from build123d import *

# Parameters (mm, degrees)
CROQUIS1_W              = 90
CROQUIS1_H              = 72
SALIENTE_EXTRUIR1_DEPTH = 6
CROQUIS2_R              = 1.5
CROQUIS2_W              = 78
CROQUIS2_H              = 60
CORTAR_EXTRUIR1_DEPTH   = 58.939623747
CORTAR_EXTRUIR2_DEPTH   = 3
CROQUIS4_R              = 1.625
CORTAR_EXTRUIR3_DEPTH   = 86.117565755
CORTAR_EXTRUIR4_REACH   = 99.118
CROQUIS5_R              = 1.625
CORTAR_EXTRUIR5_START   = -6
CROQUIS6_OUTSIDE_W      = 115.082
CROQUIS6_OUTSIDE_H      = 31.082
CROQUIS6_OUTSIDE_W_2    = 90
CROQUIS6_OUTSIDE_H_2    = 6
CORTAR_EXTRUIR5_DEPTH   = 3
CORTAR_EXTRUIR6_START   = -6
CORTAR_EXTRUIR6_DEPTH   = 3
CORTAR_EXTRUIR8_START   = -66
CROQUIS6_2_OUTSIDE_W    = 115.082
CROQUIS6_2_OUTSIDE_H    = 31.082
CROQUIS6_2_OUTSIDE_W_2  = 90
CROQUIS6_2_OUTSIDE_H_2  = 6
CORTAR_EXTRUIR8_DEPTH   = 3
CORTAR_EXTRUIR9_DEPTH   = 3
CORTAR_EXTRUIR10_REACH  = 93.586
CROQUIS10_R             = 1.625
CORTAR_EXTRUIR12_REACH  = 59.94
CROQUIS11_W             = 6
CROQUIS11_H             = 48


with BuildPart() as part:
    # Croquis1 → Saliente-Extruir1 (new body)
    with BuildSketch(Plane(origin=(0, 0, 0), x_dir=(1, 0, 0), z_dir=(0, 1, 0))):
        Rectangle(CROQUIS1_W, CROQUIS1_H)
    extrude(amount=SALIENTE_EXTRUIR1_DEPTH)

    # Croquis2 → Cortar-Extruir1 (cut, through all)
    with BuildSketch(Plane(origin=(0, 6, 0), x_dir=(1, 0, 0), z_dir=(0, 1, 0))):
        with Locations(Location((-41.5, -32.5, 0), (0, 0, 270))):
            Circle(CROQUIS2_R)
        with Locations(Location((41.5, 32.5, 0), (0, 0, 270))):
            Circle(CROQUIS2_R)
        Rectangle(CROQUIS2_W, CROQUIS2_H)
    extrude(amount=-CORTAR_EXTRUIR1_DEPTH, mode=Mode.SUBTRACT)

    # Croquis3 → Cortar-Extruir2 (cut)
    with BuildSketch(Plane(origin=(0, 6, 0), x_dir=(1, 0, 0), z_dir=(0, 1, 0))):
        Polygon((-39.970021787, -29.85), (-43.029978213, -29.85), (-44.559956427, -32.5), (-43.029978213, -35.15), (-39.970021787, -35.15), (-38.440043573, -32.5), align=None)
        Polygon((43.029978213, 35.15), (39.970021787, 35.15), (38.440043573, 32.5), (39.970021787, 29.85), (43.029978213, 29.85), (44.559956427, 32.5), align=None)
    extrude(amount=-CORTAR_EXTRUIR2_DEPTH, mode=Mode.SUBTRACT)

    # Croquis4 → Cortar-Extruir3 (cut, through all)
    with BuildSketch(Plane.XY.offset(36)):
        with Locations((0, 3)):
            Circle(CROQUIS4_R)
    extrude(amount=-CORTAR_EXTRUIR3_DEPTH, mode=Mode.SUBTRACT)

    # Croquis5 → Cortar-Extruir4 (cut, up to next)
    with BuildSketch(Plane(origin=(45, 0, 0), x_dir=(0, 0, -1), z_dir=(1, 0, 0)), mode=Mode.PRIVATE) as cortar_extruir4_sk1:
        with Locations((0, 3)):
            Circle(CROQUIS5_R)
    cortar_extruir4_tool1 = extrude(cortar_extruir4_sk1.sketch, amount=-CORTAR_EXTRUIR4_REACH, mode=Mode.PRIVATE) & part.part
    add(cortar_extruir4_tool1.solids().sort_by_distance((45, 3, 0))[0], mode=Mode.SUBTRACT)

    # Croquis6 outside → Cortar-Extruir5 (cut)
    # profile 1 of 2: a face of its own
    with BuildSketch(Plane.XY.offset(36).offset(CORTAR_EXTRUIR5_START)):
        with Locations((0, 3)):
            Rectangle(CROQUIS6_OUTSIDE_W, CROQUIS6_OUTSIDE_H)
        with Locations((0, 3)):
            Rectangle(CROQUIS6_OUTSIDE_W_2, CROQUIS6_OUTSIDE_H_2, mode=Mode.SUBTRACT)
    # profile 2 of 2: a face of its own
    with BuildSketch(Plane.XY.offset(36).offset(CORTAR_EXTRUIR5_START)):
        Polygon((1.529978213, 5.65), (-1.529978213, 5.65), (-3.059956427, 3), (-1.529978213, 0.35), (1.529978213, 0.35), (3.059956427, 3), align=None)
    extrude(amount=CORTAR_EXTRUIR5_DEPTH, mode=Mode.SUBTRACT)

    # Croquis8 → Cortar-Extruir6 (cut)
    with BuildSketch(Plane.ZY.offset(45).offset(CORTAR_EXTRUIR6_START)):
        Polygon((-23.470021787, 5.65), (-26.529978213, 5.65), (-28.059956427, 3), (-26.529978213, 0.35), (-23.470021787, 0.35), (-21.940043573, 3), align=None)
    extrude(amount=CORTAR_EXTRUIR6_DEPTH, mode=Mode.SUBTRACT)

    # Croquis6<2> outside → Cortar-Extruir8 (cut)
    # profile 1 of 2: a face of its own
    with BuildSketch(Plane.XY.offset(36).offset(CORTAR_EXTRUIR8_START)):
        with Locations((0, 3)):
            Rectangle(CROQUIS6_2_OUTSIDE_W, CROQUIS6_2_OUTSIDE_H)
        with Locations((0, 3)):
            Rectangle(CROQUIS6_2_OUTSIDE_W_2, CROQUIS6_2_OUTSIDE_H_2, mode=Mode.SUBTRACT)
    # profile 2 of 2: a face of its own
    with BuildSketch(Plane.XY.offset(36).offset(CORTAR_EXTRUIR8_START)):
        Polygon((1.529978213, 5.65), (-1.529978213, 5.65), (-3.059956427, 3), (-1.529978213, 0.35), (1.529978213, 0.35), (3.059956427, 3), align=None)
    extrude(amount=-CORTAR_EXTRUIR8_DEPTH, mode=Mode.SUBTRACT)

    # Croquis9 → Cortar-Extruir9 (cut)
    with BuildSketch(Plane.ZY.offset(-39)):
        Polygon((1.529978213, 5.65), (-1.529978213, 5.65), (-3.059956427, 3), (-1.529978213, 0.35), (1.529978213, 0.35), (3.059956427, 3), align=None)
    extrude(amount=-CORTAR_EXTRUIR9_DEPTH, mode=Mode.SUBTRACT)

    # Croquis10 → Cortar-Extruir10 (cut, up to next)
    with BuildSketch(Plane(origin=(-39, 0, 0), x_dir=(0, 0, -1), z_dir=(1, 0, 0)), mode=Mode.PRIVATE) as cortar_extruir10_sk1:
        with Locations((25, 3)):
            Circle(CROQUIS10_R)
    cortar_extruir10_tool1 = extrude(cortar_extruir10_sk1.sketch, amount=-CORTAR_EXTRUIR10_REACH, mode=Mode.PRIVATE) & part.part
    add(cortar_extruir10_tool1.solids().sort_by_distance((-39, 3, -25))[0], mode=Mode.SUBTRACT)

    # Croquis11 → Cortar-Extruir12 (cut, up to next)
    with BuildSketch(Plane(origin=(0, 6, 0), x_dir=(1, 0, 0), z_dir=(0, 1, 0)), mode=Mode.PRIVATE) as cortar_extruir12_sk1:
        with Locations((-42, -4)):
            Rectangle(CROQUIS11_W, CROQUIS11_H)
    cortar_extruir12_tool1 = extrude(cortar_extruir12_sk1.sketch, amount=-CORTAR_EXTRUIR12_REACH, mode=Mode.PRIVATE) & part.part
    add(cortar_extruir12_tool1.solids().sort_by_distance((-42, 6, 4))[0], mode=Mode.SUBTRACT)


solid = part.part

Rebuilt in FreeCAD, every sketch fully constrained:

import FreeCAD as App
import Part
import Sketcher
from FreeCAD import Vector
Q = App.Units.Quantity


def add_polygon(sketch, points):
    """Adds a closed chain of lines whose ends are joined by coincident constraints."""
    first, n = sketch.GeometryCount, len(points)
    for a, b in zip(points, points[1:] + points[:1]):
        sketch.addGeometry(Part.LineSegment(App.Vector(*a, 0), App.Vector(*b, 0)), False)
    for i in range(n):
        sketch.addConstraint(Sketcher.Constraint("Coincident", first + i, 2, first + (i + 1) % n, 1))

doc = App.newDocument("Part")
body = doc.addObject("PartDesign::Body", "Body")

sketch1 = body.newObject("Sketcher::SketchObject", "Sketch")
sketch1.AttachmentSupport = (doc.getObject("XZ_Plane"), [""])
sketch1.MapMode = "FlatFace"
add_polygon(sketch1, [(-45, -36), (-45, 36), (45, 36), (45, -36)])
sketch1.addConstraint(Sketcher.Constraint("Vertical", 0))
sketch1.addConstraint(Sketcher.Constraint("Horizontal", 1))
sketch1.addConstraint(Sketcher.Constraint("Vertical", 2))
sketch1.addConstraint(Sketcher.Constraint("Horizontal", 3))
sketch1.addConstraint(Sketcher.Constraint("Symmetric", 0, 2, 2, 2, -1, 1))
sketch1.addConstraint(Sketcher.Constraint("DistanceX", 1, 1, 1, 2, Q("90 mm")))
sketch1.addConstraint(Sketcher.Constraint("DistanceY", 0, 1, 0, 2, Q("72 mm")))
pad1 = body.newObject("PartDesign::Pad", "Pad")
pad1.Profile = sketch1
pad1.Length = 6
pad1.Reversed = True

sketch2 = body.newObject("Sketcher::SketchObject", "Sketch001")
sketch2.AttachmentSupport = (doc.getObject("XZ_Plane"), [""])
sketch2.MapMode = "FlatFace"
sketch2.AttachmentOffset = App.Placement(Vector(0, 0, -6), App.Rotation())
sketch2.addGeometry(Part.Circle(Vector(-41.5, 32.5, 0), Vector(0, 0, 1), 1.5), False)
sketch2.addGeometry(Part.Circle(Vector(41.5, -32.5, 0), Vector(0, 0, 1), 1.5), False)
add_polygon(sketch2, [(-39, -30), (-39, 30), (39, 30), (39, -30)])
sketch2.addConstraint(Sketcher.Constraint("Vertical", 2))
sketch2.addConstraint(Sketcher.Constraint("Horizontal", 3))
sketch2.addConstraint(Sketcher.Constraint("Vertical", 4))
sketch2.addConstraint(Sketcher.Constraint("Horizontal", 5))
sketch2.addConstraint(Sketcher.Constraint("Equal", 0, 1))
sketch2.addConstraint(Sketcher.Constraint("Symmetric", 0, 3, 1, 3, -1, 1))
sketch2.addConstraint(Sketcher.Constraint("Symmetric", 2, 2, 4, 2, -1, 1))
sketch2.addConstraint(Sketcher.Constraint("Diameter", 0, Q("3 mm")))
sketch2.addConstraint(Sketcher.Constraint("DistanceX", 3, 1, 3, 2, Q("78 mm")))
sketch2.addConstraint(Sketcher.Constraint("DistanceY", 2, 1, 2, 2, Q("60 mm")))
sketch2.addConstraint(Sketcher.Constraint("DistanceX", 0, 3, 1, 3, Q("83 mm")))
sketch2.addConstraint(Sketcher.Constraint("DistanceY", 1, 3, 0, 3, Q("65 mm")))
pocket1 = body.newObject("PartDesign::Pocket", "Pocket")
pocket1.Profile = sketch2
pocket1.Type = "ThroughAll"
pocket1.Reversed = True

sketch3 = body.newObject("Sketcher::SketchObject", "Sketch002")
sketch3.AttachmentSupport = (doc.getObject("XZ_Plane"), [""])
sketch3.MapMode = "FlatFace"
sketch3.AttachmentOffset = App.Placement(Vector(0, 0, -6), App.Rotation())
add_polygon(sketch3, [(-40, 29.9), (-43, 29.9), (-44.6, 32.5), (-43, 35.1), (-40, 35.1), (-38.4, 32.5)])
add_polygon(sketch3, [(43, -35.1), (40, -35.1), (38.4, -32.5), (40, -29.9), (43, -29.9), (44.6, -32.5)])
sketch3.addConstraint(Sketcher.Constraint("Horizontal", 0))
sketch3.addConstraint(Sketcher.Constraint("Horizontal", 3))
sketch3.addConstraint(Sketcher.Constraint("Horizontal", 6))
sketch3.addConstraint(Sketcher.Constraint("Horizontal", 9))
sketch3.addConstraint(Sketcher.Constraint("Symmetric", 3, 2, 6, 2, -1, 1))
sketch3.addConstraint(Sketcher.Constraint("Symmetric", 4, 2, 7, 2, -1, 1))
sketch3.addConstraint(Sketcher.Constraint("Symmetric", 5, 2, 8, 2, -1, 1))
sketch3.addConstraint(Sketcher.Constraint("Symmetric", 1, 2, 10, 2, -1, 1))
sketch3.addConstraint(Sketcher.Constraint("Parallel", 1, 4))
sketch3.addConstraint(Sketcher.Constraint("Parallel", 2, 5))
sketch3.addConstraint(Sketcher.Constraint("Parallel", 7, 10))
sketch3.addConstraint(Sketcher.Constraint("Parallel", 8, 11))
sketch3.addConstraint(Sketcher.Constraint("Horizontal", 1, 2, 4, 2))
sketch3.addConstraint(Sketcher.Constraint("Vertical", 0, 2, 2, 2))
sketch3.addConstraint(Sketcher.Constraint("Vertical", 3, 2, 5, 2))
sketch3.addConstraint(Sketcher.Constraint("Angle", 1, Q("120 deg")))
sketch3.addConstraint(Sketcher.Constraint("DistanceY", 6, 2, 5, 2, Q("65 mm")))
sketch3.addConstraint(Sketcher.Constraint("DistanceX", 0, 2, 6, 2, Q("83 mm")))
sketch3.addConstraint(Sketcher.Constraint("DistanceY", 0, 2, 2, 2, Q("5.3 mm")))
sketch3.addConstraint(Sketcher.Constraint("DistanceX", 0, 2, 0, 1, Q("3.059956 mm")))
pocket2 = body.newObject("PartDesign::Pocket", "Pocket001")
pocket2.Profile = sketch3
pocket2.Length = 3
pocket2.Reversed = True

sketch4 = body.newObject("Sketcher::SketchObject", "Sketch003")
sketch4.AttachmentSupport = (doc.getObject("XY_Plane"), [""])
sketch4.MapMode = "FlatFace"
sketch4.AttachmentOffset = App.Placement(Vector(0, 0, 36), App.Rotation())
sketch4.addGeometry(Part.Circle(Vector(0, 3, 0), Vector(0, 0, 1), 1.6), False)
sketch4.addConstraint(Sketcher.Constraint("PointOnObject", 0, 3, -2))
sketch4.addConstraint(Sketcher.Constraint("Diameter", 0, Q("3.25 mm")))
sketch4.addConstraint(Sketcher.Constraint("DistanceY", -1, 1, 0, 3, Q("3 mm")))
pocket3 = body.newObject("PartDesign::Pocket", "Pocket002")
pocket3.Profile = sketch4
pocket3.Type = "ThroughAll"

sketch5 = body.newObject("Sketcher::SketchObject", "Sketch004")
sketch5.AttachmentSupport = (doc.getObject("YZ_Plane"), [""])
sketch5.MapMode = "FlatFace"
sketch5.AttachmentOffset = App.Placement(Vector(0, 0, 45), App.Rotation())
sketch5.addGeometry(Part.Circle(Vector(3, 0, 0), Vector(0, 0, 1), 1.6), False)
sketch5.addConstraint(Sketcher.Constraint("PointOnObject", 0, 3, -1))
sketch5.addConstraint(Sketcher.Constraint("Diameter", 0, Q("3.25 mm")))
sketch5.addConstraint(Sketcher.Constraint("DistanceX", -1, 1, 0, 3, Q("3 mm")))
pocket4 = body.newObject("PartDesign::Pocket", "Pocket003")
pocket4.Profile = sketch5
pocket4.Type = "UpToFirst"

sketch6 = body.newObject("Sketcher::SketchObject", "Sketch005")
sketch6.AttachmentSupport = (doc.getObject("XY_Plane"), [""])
sketch6.MapMode = "FlatFace"
sketch6.AttachmentOffset = App.Placement(Vector(0, 0, 30), App.Rotation())
add_polygon(sketch6, [(-57.5, 18.5), (-57.5, -12.5), (57.5, -12.5), (57.5, 18.5)])
add_polygon(sketch6, [(45, 0), (-45, 0), (-45, 6), (45, 6)])
add_polygon(sketch6, [(1.5, 5.7), (-1.5, 5.7), (-3.1, 3), (-1.5, 0.3), (1.5, 0.3), (3.1, 3)])
sketch6.addConstraint(Sketcher.Constraint("Vertical", 0))
sketch6.addConstraint(Sketcher.Constraint("Horizontal", 1))
sketch6.addConstraint(Sketcher.Constraint("Vertical", 2))
sketch6.addConstraint(Sketcher.Constraint("Horizontal", 3))
sketch6.addConstraint(Sketcher.Constraint("Horizontal", 4))
sketch6.addConstraint(Sketcher.Constraint("Vertical", 5))
sketch6.addConstraint(Sketcher.Constraint("Horizontal", 6))
sketch6.addConstraint(Sketcher.Constraint("Vertical", 7))
sketch6.addConstraint(Sketcher.Constraint("Horizontal", 8))
sketch6.addConstraint(Sketcher.Constraint("Horizontal", 11))
sketch6.addConstraint(Sketcher.Constraint("Symmetric", 4, 2, 7, 2, -1, 1))
sketch6.addConstraint(Sketcher.Constraint("Symmetric", 9, 2, 12, 2, -2))
sketch6.addConstraint(Sketcher.Constraint("Parallel", 9, 12))
sketch6.addConstraint(Sketcher.Constraint("Parallel", 10, 13))
sketch6.addConstraint(Sketcher.Constraint("Vertical", 8, 2, 10, 2))
sketch6.addConstraint(Sketcher.Constraint("Vertical", 11, 2, 13, 2))
sketch6.addConstraint(Sketcher.Constraint("DistanceX", 4, 2, 4, 1, Q("90 mm")))
sketch6.addConstraint(Sketcher.Constraint("DistanceY", 5, 1, 5, 2, Q("6 mm")))
sketch6.addConstraint(Sketcher.Constraint("Angle", 9, Q("-120 deg")))
sketch6.addConstraint(Sketcher.Constraint("DistanceY", -1, 1, 9, 2, Q("3 mm")))
sketch6.addConstraint(Sketcher.Constraint("DistanceY", 10, 2, 8, 2, Q("5.3 mm")))
sketch6.addConstraint(Sketcher.Constraint("DistanceX", 1, 1, 1, 2, Q("115.082 mm")))
sketch6.addConstraint(Sketcher.Constraint("DistanceY", 0, 2, 0, 1, Q("31.082 mm")))
sketch6.addConstraint(Sketcher.Constraint("DistanceX", 0, 2, -1, 1, Q("57.541 mm")))
sketch6.addConstraint(Sketcher.Constraint("DistanceY", 0, 2, -1, 1, Q("12.541 mm")))
sketch6.addConstraint(Sketcher.Constraint("DistanceX", 8, 2, 8, 1, Q("3.059956 mm")))
pocket5 = body.newObject("PartDesign::Pocket", "Pocket004")
pocket5.Profile = sketch6
pocket5.Length = 3
pocket5.Reversed = True

sketch7 = body.newObject("Sketcher::SketchObject", "Sketch006")
sketch7.AttachmentSupport = (doc.getObject("YZ_Plane"), [""])
sketch7.MapMode = "FlatFace"
sketch7.AttachmentOffset = App.Placement(Vector(0, 0, -39), App.Rotation())
add_polygon(sketch7, [(5.7, -23.5), (5.7, -26.5), (3, -28.1), (0.3, -26.5), (0.3, -23.5), (3, -21.9)])
sketch7.addConstraint(Sketcher.Constraint("Vertical", 0))
sketch7.addConstraint(Sketcher.Constraint("Vertical", 3))
sketch7.addConstraint(Sketcher.Constraint("Parallel", 1, 4))
sketch7.addConstraint(Sketcher.Constraint("Parallel", 2, 5))
sketch7.addConstraint(Sketcher.Constraint("Horizontal", 0, 2, 2, 2))
sketch7.addConstraint(Sketcher.Constraint("Horizontal", 3, 2, 5, 2))
sketch7.addConstraint(Sketcher.Constraint("Vertical", 1, 2, 4, 2))
sketch7.addConstraint(Sketcher.Constraint("Angle", 1, Q("-150 deg")))
sketch7.addConstraint(Sketcher.Constraint("DistanceX", -1, 1, 1, 2, Q("3 mm")))
sketch7.addConstraint(Sketcher.Constraint("DistanceX", 2, 2, 0, 2, Q("5.3 mm")))
sketch7.addConstraint(Sketcher.Constraint("DistanceY", 0, 2, 0, 1, Q("3.059956 mm")))
sketch7.addConstraint(Sketcher.Constraint("DistanceY", 0, 2, -1, 1, Q("26.529978 mm")))
pocket6 = body.newObject("PartDesign::Pocket", "Pocket005")
pocket6.Profile = sketch7
pocket6.Length = 3

sketch8 = body.newObject("Sketcher::SketchObject", "Sketch007")
sketch8.AttachmentSupport = (doc.getObject("XY_Plane"), [""])
sketch8.MapMode = "FlatFace"
sketch8.AttachmentOffset = App.Placement(Vector(0, 0, -30), App.Rotation())
add_polygon(sketch8, [(-57.5, 18.5), (-57.5, -12.5), (57.5, -12.5), (57.5, 18.5)])
add_polygon(sketch8, [(45, 0), (-45, 0), (-45, 6), (45, 6)])
add_polygon(sketch8, [(1.5, 5.7), (-1.5, 5.7), (-3.1, 3), (-1.5, 0.3), (1.5, 0.3), (3.1, 3)])
sketch8.addConstraint(Sketcher.Constraint("Vertical", 0))
sketch8.addConstraint(Sketcher.Constraint("Horizontal", 1))
sketch8.addConstraint(Sketcher.Constraint("Vertical", 2))
sketch8.addConstraint(Sketcher.Constraint("Horizontal", 3))
sketch8.addConstraint(Sketcher.Constraint("Horizontal", 4))
sketch8.addConstraint(Sketcher.Constraint("Vertical", 5))
sketch8.addConstraint(Sketcher.Constraint("Horizontal", 6))
sketch8.addConstraint(Sketcher.Constraint("Vertical", 7))
sketch8.addConstraint(Sketcher.Constraint("Horizontal", 8))
sketch8.addConstraint(Sketcher.Constraint("Horizontal", 11))
sketch8.addConstraint(Sketcher.Constraint("Symmetric", 4, 2, 7, 2, -1, 1))
sketch8.addConstraint(Sketcher.Constraint("Symmetric", 9, 2, 12, 2, -2))
sketch8.addConstraint(Sketcher.Constraint("Parallel", 9, 12))
sketch8.addConstraint(Sketcher.Constraint("Parallel", 10, 13))
sketch8.addConstraint(Sketcher.Constraint("Vertical", 8, 2, 10, 2))
sketch8.addConstraint(Sketcher.Constraint("Vertical", 11, 2, 13, 2))
sketch8.addConstraint(Sketcher.Constraint("DistanceX", 4, 2, 4, 1, Q("90 mm")))
sketch8.addConstraint(Sketcher.Constraint("DistanceY", 5, 1, 5, 2, Q("6 mm")))
sketch8.addConstraint(Sketcher.Constraint("Angle", 9, Q("-120 deg")))
sketch8.addConstraint(Sketcher.Constraint("DistanceY", -1, 1, 9, 2, Q("3 mm")))
sketch8.addConstraint(Sketcher.Constraint("DistanceY", 10, 2, 8, 2, Q("5.3 mm")))
sketch8.addConstraint(Sketcher.Constraint("DistanceX", 1, 1, 1, 2, Q("115.082 mm")))
sketch8.addConstraint(Sketcher.Constraint("DistanceY", 0, 2, 0, 1, Q("31.082 mm")))
sketch8.addConstraint(Sketcher.Constraint("DistanceX", 0, 2, -1, 1, Q("57.541 mm")))
sketch8.addConstraint(Sketcher.Constraint("DistanceY", 0, 2, -1, 1, Q("12.541 mm")))
sketch8.addConstraint(Sketcher.Constraint("DistanceX", 8, 2, 8, 1, Q("3.059956 mm")))
pocket7 = body.newObject("PartDesign::Pocket", "Pocket006")
pocket7.Profile = sketch8
pocket7.Length = 3

sketch9 = body.newObject("Sketcher::SketchObject", "Sketch008")
sketch9.AttachmentSupport = (doc.getObject("YZ_Plane"), [""])
sketch9.MapMode = "FlatFace"
sketch9.AttachmentOffset = App.Placement(Vector(0, 0, 39), App.Rotation())
add_polygon(sketch9, [(5.7, 1.5), (5.7, -1.5), (3, -3.1), (0.3, -1.5), (0.3, 1.5), (3, 3.1)])
sketch9.addConstraint(Sketcher.Constraint("Vertical", 0))
sketch9.addConstraint(Sketcher.Constraint("Vertical", 3))
sketch9.addConstraint(Sketcher.Constraint("Symmetric", 1, 2, 4, 2, -1))
sketch9.addConstraint(Sketcher.Constraint("Parallel", 1, 4))
sketch9.addConstraint(Sketcher.Constraint("Parallel", 2, 5))
sketch9.addConstraint(Sketcher.Constraint("Horizontal", 0, 2, 2, 2))
sketch9.addConstraint(Sketcher.Constraint("Horizontal", 3, 2, 5, 2))
sketch9.addConstraint(Sketcher.Constraint("Angle", 1, Q("-150 deg")))
sketch9.addConstraint(Sketcher.Constraint("DistanceX", -1, 1, 1, 2, Q("3 mm")))
sketch9.addConstraint(Sketcher.Constraint("DistanceX", 2, 2, 0, 2, Q("5.3 mm")))
sketch9.addConstraint(Sketcher.Constraint("DistanceY", 0, 2, 0, 1, Q("3.059956 mm")))
pocket8 = body.newObject("PartDesign::Pocket", "Pocket007")
pocket8.Profile = sketch9
pocket8.Length = 3
pocket8.Reversed = True

sketch10 = body.newObject("Sketcher::SketchObject", "Sketch009")
sketch10.AttachmentSupport = (doc.getObject("YZ_Plane"), [""])
sketch10.MapMode = "FlatFace"
sketch10.AttachmentOffset = App.Placement(Vector(0, 0, -39), App.Rotation())
sketch10.addGeometry(Part.Circle(Vector(3, -25, 0), Vector(0, 0, 1), 1.6), False)
sketch10.addConstraint(Sketcher.Constraint("Diameter", 0, Q("3.25 mm")))
sketch10.addConstraint(Sketcher.Constraint("DistanceX", -1, 1, 0, 3, Q("3 mm")))
sketch10.addConstraint(Sketcher.Constraint("DistanceY", 0, 3, -1, 1, Q("25 mm")))
pocket9 = body.newObject("PartDesign::Pocket", "Pocket008")
pocket9.Profile = sketch10
pocket9.Length = 6

sketch11 = body.newObject("Sketcher::SketchObject", "Sketch010")
sketch11.AttachmentSupport = (doc.getObject("XZ_Plane"), [""])
sketch11.MapMode = "FlatFace"
sketch11.AttachmentOffset = App.Placement(Vector(0, 0, -6), App.Rotation())
add_polygon(sketch11, [(-45, -20), (-45, 28), (-39, 28), (-39, -20)])
sketch11.addConstraint(Sketcher.Constraint("Vertical", 0))
sketch11.addConstraint(Sketcher.Constraint("Horizontal", 1))
sketch11.addConstraint(Sketcher.Constraint("Vertical", 2))
sketch11.addConstraint(Sketcher.Constraint("Horizontal", 3))
sketch11.addConstraint(Sketcher.Constraint("DistanceX", 1, 1, 1, 2, Q("6 mm")))
sketch11.addConstraint(Sketcher.Constraint("DistanceY", 0, 1, 0, 2, Q("48 mm")))
sketch11.addConstraint(Sketcher.Constraint("DistanceX", 0, 2, -1, 1, Q("45 mm")))
sketch11.addConstraint(Sketcher.Constraint("DistanceY", -1, 1, 0, 2, Q("28 mm")))
pocket10 = body.newObject("PartDesign::Pocket", "Pocket009")
pocket10.Profile = sketch11
pocket10.Type = "UpToFirst"
pocket10.Reversed = True

doc.recompute()
